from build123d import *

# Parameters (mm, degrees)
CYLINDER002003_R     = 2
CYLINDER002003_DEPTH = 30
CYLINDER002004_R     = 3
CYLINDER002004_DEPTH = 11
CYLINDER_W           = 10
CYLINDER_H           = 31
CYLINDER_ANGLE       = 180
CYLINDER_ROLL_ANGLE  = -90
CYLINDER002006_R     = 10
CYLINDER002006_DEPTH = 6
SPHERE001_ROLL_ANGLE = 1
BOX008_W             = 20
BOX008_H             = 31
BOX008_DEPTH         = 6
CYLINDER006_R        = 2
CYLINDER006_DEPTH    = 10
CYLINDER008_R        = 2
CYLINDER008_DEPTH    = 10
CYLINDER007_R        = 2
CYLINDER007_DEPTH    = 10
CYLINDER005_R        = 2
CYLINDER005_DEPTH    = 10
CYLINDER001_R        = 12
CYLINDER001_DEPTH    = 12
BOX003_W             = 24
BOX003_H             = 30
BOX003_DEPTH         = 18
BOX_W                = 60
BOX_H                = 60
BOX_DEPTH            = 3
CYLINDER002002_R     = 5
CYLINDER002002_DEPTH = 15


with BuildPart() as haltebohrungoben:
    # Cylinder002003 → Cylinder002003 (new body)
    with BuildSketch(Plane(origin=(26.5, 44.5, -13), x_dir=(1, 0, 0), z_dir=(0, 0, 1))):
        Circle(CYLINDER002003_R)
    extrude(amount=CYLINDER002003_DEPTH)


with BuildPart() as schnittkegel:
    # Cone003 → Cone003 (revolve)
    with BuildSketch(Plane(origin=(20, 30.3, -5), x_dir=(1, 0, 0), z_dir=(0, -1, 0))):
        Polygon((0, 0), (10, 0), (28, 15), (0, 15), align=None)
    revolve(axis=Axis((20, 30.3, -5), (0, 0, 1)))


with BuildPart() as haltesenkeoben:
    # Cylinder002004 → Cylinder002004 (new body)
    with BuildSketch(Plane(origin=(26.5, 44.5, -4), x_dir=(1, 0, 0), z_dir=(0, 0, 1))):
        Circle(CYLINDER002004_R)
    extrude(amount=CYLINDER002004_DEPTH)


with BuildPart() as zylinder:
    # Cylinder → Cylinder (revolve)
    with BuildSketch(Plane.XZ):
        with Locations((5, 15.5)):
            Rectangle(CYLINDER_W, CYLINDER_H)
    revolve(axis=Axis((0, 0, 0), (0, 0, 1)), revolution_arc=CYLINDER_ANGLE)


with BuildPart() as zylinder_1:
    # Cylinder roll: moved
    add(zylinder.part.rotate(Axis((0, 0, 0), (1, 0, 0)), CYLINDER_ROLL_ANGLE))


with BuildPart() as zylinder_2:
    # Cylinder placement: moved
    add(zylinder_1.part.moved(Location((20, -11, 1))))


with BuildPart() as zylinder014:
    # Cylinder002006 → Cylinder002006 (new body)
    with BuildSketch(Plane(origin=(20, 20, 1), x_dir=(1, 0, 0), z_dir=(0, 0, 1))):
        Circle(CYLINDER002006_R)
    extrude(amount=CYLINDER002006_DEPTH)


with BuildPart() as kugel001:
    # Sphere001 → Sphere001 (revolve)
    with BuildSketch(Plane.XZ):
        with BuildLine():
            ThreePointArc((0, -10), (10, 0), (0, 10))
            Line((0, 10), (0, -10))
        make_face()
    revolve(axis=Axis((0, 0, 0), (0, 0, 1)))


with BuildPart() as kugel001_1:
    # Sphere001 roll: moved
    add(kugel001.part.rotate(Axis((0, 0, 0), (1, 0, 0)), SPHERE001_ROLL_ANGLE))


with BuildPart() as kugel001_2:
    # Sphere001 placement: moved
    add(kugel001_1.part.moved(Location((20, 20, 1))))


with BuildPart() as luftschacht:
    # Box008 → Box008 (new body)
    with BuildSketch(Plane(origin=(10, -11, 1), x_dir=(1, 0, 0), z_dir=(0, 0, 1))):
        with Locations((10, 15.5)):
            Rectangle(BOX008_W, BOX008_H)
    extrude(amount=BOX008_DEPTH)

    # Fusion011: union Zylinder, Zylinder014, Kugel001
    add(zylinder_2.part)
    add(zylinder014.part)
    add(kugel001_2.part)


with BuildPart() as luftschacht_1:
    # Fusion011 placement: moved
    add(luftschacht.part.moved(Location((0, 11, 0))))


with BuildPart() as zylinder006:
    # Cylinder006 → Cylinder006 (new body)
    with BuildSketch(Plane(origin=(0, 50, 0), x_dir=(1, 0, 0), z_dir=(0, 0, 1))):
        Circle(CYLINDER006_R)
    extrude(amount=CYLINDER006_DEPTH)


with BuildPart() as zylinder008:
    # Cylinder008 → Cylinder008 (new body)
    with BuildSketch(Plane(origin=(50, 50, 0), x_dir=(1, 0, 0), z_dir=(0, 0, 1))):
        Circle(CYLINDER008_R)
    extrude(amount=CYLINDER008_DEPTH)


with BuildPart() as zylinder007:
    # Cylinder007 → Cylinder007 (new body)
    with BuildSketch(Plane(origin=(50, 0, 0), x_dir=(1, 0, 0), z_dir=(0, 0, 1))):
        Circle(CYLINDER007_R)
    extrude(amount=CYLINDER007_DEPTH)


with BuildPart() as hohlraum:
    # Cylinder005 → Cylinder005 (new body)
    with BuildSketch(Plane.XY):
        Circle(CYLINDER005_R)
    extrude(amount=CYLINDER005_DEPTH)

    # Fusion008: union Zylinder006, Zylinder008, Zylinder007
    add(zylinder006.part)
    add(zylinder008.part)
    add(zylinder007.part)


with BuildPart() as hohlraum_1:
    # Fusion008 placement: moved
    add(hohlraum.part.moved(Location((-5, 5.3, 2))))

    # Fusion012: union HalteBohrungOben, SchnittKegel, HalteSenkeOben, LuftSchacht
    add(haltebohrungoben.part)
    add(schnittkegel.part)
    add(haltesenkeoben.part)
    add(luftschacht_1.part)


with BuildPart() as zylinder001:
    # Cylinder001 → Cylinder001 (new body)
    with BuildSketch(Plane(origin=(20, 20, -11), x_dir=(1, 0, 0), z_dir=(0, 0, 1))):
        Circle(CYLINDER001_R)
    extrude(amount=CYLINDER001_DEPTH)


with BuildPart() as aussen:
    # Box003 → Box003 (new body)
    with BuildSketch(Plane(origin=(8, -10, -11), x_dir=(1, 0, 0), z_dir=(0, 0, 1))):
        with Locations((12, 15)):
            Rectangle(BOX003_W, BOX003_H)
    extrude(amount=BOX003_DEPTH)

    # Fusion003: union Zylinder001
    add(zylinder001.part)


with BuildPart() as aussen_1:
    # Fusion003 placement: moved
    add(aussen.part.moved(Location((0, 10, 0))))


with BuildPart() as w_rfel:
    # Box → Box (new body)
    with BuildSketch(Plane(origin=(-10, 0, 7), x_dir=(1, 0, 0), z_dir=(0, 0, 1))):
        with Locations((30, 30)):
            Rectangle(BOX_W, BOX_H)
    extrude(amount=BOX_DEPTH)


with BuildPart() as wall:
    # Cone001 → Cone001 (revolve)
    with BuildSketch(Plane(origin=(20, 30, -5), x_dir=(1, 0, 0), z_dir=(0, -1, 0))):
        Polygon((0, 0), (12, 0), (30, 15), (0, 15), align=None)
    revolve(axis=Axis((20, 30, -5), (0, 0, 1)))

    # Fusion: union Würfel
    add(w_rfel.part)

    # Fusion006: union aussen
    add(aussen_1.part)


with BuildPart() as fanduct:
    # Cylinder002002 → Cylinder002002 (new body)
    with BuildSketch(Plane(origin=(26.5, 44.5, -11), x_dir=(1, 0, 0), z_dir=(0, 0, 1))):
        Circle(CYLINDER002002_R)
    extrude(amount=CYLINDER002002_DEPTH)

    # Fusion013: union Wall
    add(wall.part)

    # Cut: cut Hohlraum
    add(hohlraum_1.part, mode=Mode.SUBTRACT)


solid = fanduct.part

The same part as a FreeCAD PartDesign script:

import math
import FreeCAD as App
import Part
import Sketcher
from FreeCAD import Vector
Q = App.Units.Quantity


def add_polygon(sketch, points):
    """Adds a closed chain of lines whose ends are joined by coincident constraints."""
    first, n = sketch.GeometryCount, len(points)
    for a, b in zip(points, points[1:] + points[:1]):
        sketch.addGeometry(Part.LineSegment(App.Vector(*a, 0), App.Vector(*b, 0)), False)
    for i in range(n):
        sketch.addConstraint(Sketcher.Constraint("Coincident", first + i, 2, first + (i + 1) % n, 1))

doc = App.newDocument("Part")
body = doc.addObject("PartDesign::Body", "Body")

sketch1 = body.newObject("Sketcher::SketchObject", "Sketch")
sketch1.AttachmentSupport = (doc.getObject("XY_Plane"), [""])
sketch1.MapMode = "FlatFace"
sketch1.AttachmentOffset = App.Placement(Vector(0, 0, -13), App.Rotation())
sketch1.addGeometry(Part.Circle(Vector(26.5, 44.5, 0), Vector(0, 0, 1), 2), False)
sketch1.addConstraint([
    Sketcher.Constraint("Diameter", 0, Q("4 mm")),
    Sketcher.Constraint("DistanceX", -1, 1, 0, 3, Q("26.5 mm")),
    Sketcher.Constraint("DistanceY", -1, 1, 0, 3, Q("44.5 mm")),
])
pad1 = body.newObject("PartDesign::Pad", "Pad")
pad1.Profile = sketch1
pad1.Length = 30
body2 = doc.addObject("PartDesign::Body", "Body001")

sketch2 = body2.newObject("Sketcher::SketchObject", "Sketch001")
sketch2.AttachmentSupport = (doc.getObject("XZ_Plane001"), [""])
sketch2.MapMode = "FlatFace"
sketch2.AttachmentOffset = App.Placement(Vector(0, 0, -30.3), App.Rotation())
add_polygon(sketch2, [(20, -5), (30, -5), (48, 10), (20, 10)])
sketch2.addGeometry(Part.LineSegment(Vector(20, -5, 0), Vector(20, 10, 0)), True)
sketch2.addConstraint([
    Sketcher.Constraint("Horizontal", 0),
    Sketcher.Constraint("Horizontal", 2),
    Sketcher.Constraint("Vertical", 3),
    Sketcher.Constraint("Vertical", 4),
    Sketcher.Constraint("Coincident", 4, 1, 3, 2),
    Sketcher.Constraint("Horizontal", 1, 2, 4, 2),
    Sketcher.Constraint("DistanceX", 0, 1, 0, 2, Q("10 mm")),
    Sketcher.Constraint("DistanceX", 2, 2, 2, 1, Q("28 mm")),
    Sketcher.Constraint("DistanceY", 3, 2, 3, 1, Q("15 mm")),
    Sketcher.Constraint("DistanceX", -1, 1, 0, 2, Q("30 mm")),
    Sketcher.Constraint("DistanceY", 0, 2, -1, 1, Q("5 mm")),
])
revolution = body2.newObject("PartDesign::Revolution", "Revolution")
revolution.Profile = sketch2
revolution.ReferenceAxis = (sketch2, ["Axis0"])
revolution.Angle = 360
body3 = doc.addObject("PartDesign::Body", "Body002")

sketch3 = body3.newObject("Sketcher::SketchObject", "Sketch002")
sketch3.AttachmentSupport = (doc.getObject("XY_Plane002"), [""])
sketch3.MapMode = "FlatFace"
sketch3.AttachmentOffset = App.Placement(Vector(0, 0, -4), App.Rotation())
sketch3.addGeometry(Part.Circle(Vector(26.5, 44.5, 0), Vector(0, 0, 1), 3), False)
sketch3.addConstraint([
    Sketcher.Constraint("Diameter", 0, Q("6 mm")),
    Sketcher.Constraint("DistanceX", -1, 1, 0, 3, Q("26.5 mm")),
    Sketcher.Constraint("DistanceY", -1, 1, 0, 3, Q("44.5 mm")),
])
pad2 = body3.newObject("PartDesign::Pad", "Pad001")
pad2.Profile = sketch3
pad2.Length = 11
body4 = doc.addObject("PartDesign::Body", "Body003")

sketch4 = body4.newObject("Sketcher::SketchObject", "Sketch003")
sketch4.AttachmentSupport = (doc.getObject("XZ_Plane003"), [""])
sketch4.MapMode = "FlatFace"
add_polygon(sketch4, [(0, 31), (0, 0), (10, 0), (10, 31)])
sketch4.addConstraint([
    Sketcher.Constraint("Vertical", 0),
    Sketcher.Constraint("Horizontal", 1),
    Sketcher.Constraint("Vertical", 2),
    Sketcher.Constraint("Horizontal", 3),
    Sketcher.Constraint("Coincident", 0, 2, -1, 1),
    Sketcher.Constraint("DistanceX", 1, 1, 1, 2, Q("10 mm")),
    Sketcher.Constraint("DistanceY", 0, 2, 0, 1, Q("31 mm")),
])
revolution2 = body4.newObject("PartDesign::Revolution", "Revolution001")
revolution2.Profile = sketch4
revolution2.ReferenceAxis = (sketch4, ["V_Axis"])
revolution2.Angle = 180
body5 = doc.addObject("PartDesign::Body", "Body004")
doc.recompute()

body4.Placement = App.Placement(Vector(0, 0, 0), App.Rotation(Vector(1, 0, 0), 270))
boolean = body5.newObject("PartDesign::Boolean", "Boolean")
boolean.Type = "Fuse"
boolean.addObjects([body4])
body6 = doc.addObject("PartDesign::Body", "Body005")
doc.recompute()

body5.Placement = App.Placement(Vector(20, -11, 1), App.Rotation(Vector(0, 0, 1), 0))
boolean2 = body6.newObject("PartDesign::Boolean", "Boolean001")
boolean2.Type = "Fuse"
boolean2.addObjects([body5])
body7 = doc.addObject("PartDesign::Body", "Body006")

sketch5 = body7.newObject("Sketcher::SketchObject", "Sketch004")
sketch5.AttachmentSupport = (doc.getObject("XY_Plane006"), [""])
sketch5.MapMode = "FlatFace"
sketch5.AttachmentOffset = App.Placement(Vector(0, 0, 1), App.Rotation())
sketch5.addGeometry(Part.Circle(Vector(20, 20, 0), Vector(0, 0, 1), 10), False)
sketch5.addConstraint([
    Sketcher.Constraint("Diameter", 0, Q("20 mm")),
    Sketcher.Constraint("DistanceX", -1, 1, 0, 3, Q("20 mm")),
    Sketcher.Constraint("DistanceY", -1, 1, 0, 3, Q("20 mm")),
])
pad3 = body7.newObject("PartDesign::Pad", "Pad002")
pad3.Profile = sketch5
pad3.Length = 6
body8 = doc.addObject("PartDesign::Body", "Body007")

sketch6 = body8.newObject("Sketcher::SketchObject", "Sketch005")
sketch6.AttachmentSupport = (doc.getObject("XZ_Plane007"), [""])
sketch6.MapMode = "FlatFace"
sketch6.addGeometry([
    Part.ArcOfCircle(Part.Circle(Vector(0, 0, 0), Vector(0, 0, 1), 10), math.radians(-90), math.radians(90)),
    Part.LineSegment(Vector(0, 10, 0), Vector(0, -10, 0)),
], False)
sketch6.addConstraint([
    Sketcher.Constraint("Coincident", 0, 1, 1, 2),
    Sketcher.Constraint("Coincident", 1, 1, 0, 2),
    Sketcher.Constraint("Vertical", 1),
    Sketcher.Constraint("Coincident", 0, 3, -1, 1),
    Sketcher.Constraint("PointOnObject", 0, 1, -2),
    Sketcher.Constraint("Radius", 0, Q("10 mm")),
])
revolution3 = body8.newObject("PartDesign::Revolution", "Revolution002")
revolution3.Profile = sketch6
revolution3.ReferenceAxis = (sketch6, ["V_Axis"])
revolution3.Angle = 360
body9 = doc.addObject("PartDesign::Body", "Body008")
doc.recompute()

body8.Placement = App.Placement(Vector(0, 0, 0), App.Rotation(Vector(1, 0, 0), 1))
boolean3 = body9.newObject("PartDesign::Boolean", "Boolean002")
boolean3.Type = "Fuse"
boolean3.addObjects([body8])
body10 = doc.addObject("PartDesign::Body", "Body009")
doc.recompute()

body9.Placement = App.Placement(Vector(20, 20, 1), App.Rotation(Vector(0, 0, 1), 0))
boolean4 = body10.newObject("PartDesign::Boolean", "Boolean003")
boolean4.Type = "Fuse"
boolean4.addObjects([body9])
body11 = doc.addObject("PartDesign::Body", "Body010")

sketch7 = body11.newObject("Sketcher::SketchObject", "Sketch006")
sketch7.AttachmentSupport = (doc.getObject("XY_Plane010"), [""])
sketch7.MapMode = "FlatFace"
sketch7.AttachmentOffset = App.Placement(Vector(0, 0, 1), App.Rotation())
add_polygon(sketch7, [(10, 20), (10, -11), (30, -11), (30, 20)])
sketch7.addConstraint([
    Sketcher.Constraint("Vertical", 0),
    Sketcher.Constraint("Horizontal", 1),
    Sketcher.Constraint("Vertical", 2),
    Sketcher.Constraint("Horizontal", 3),
    Sketcher.Constraint("DistanceX", 1, 1, 1, 2, Q("20 mm")),
    Sketcher.Constraint("DistanceY", 0, 2, 0, 1, Q("31 mm")),
    Sketcher.Constraint("DistanceX", -1, 1, 0, 2, Q("10 mm")),
    Sketcher.Constraint("DistanceY", 0, 2, -1, 1, Q("11 mm")),
])
pad4 = body11.newObject("PartDesign::Pad", "Pad003")
pad4.Profile = sketch7
pad4.Length = 6
doc.recompute()

boolean5 = body11.newObject("PartDesign::Boolean", "Boolean004")
boolean5.Type = "Fuse"
boolean5.addObjects([body6])
doc.recompute()

boolean6 = body11.newObject("PartDesign::Boolean", "Boolean005")
boolean6.Type = "Fuse"
boolean6.addObjects([body7])
doc.recompute()

boolean7 = body11.newObject("PartDesign::Boolean", "Boolean006")
boolean7.Type = "Fuse"
boolean7.addObjects([body10])
body12 = doc.addObject("PartDesign::Body", "Body011")
doc.recompute()

body11.Placement = App.Placement(Vector(0, 11, 0), App.Rotation(Vector(0, 0, 1), 0))
boolean8 = body12.newObject("PartDesign::Boolean", "Boolean007")
boolean8.Type = "Fuse"
boolean8.addObjects([body11])
body13 = doc.addObject("PartDesign::Body", "Body012")

sketch8 = body13.newObject("Sketcher::SketchObject", "Sketch007")
sketch8.AttachmentSupport = (doc.getObject("XY_Plane012"), [""])
sketch8.MapMode = "FlatFace"
sketch8.addGeometry(Part.Circle(Vector(0, 50, 0), Vector(0, 0, 1), 2), False)
sketch8.addConstraint([
    Sketcher.Constraint("PointOnObject", 0, 3, -2),
    Sketcher.Constraint("Diameter", 0, Q("4 mm")),
    Sketcher.Constraint("DistanceY", -1, 1, 0, 3, Q("50 mm")),
])
pad5 = body13.newObject("PartDesign::Pad", "Pad004")
pad5.Profile = sketch8
pad5.Length = 10
body14 = doc.addObject("PartDesign::Body", "Body013")

sketch9 = body14.newObject("Sketcher::SketchObject", "Sketch008")
sketch9.AttachmentSupport = (doc.getObject("XY_Plane013"), [""])
sketch9.MapMode = "FlatFace"
sketch9.addGeometry(Part.Circle(Vector(50, 50, 0), Vector(0, 0, 1), 2), False)
sketch9.addConstraint([
    Sketcher.Constraint("Diameter", 0, Q("4 mm")),
    Sketcher.Constraint("DistanceX", -1, 1, 0, 3, Q("50 mm")),
    Sketcher.Constraint("DistanceY", -1, 1, 0, 3, Q("50 mm")),
])
pad6 = body14.newObject("PartDesign::Pad", "Pad005")
pad6.Profile = sketch9
pad6.Length = 10
body15 = doc.addObject("PartDesign::Body", "Body014")

sketch10 = body15.newObject("Sketcher::SketchObject", "Sketch009")
sketch10.AttachmentSupport = (doc.getObject("XY_Plane014"), [""])
sketch10.MapMode = "FlatFace"
sketch10.addGeometry(Part.Circle(Vector(50, 0, 0), Vector(0, 0, 1), 2), False)
sketch10.addConstraint([
    Sketcher.Constraint("PointOnObject", 0, 3, -1),
    Sketcher.Constraint("Diameter", 0, Q("4 mm")),
    Sketcher.Constraint("DistanceX", -1, 1, 0, 3, Q("50 mm")),
])
pad7 = body15.newObject("PartDesign::Pad", "Pad006")
pad7.Profile = sketch10
pad7.Length = 10
body16 = doc.addObject("PartDesign::Body", "Body015")
body16.AllowCompound = True

sketch11 = body16.newObject("Sketcher::SketchObject", "Sketch010")
sketch11.AttachmentSupport = (doc.getObject("XY_Plane015"), [""])
sketch11.MapMode = "FlatFace"
sketch11.addGeometry(Part.Circle(Vector(0, 0, 0), Vector(0, 0, 1), 2), False)
sketch11.addConstraint([
    Sketcher.Constraint("Coincident", 0, 3, -1, 1),
    Sketcher.Constraint("Diameter", 0, Q("4 mm")),
])
pad8 = body16.newObject("PartDesign::Pad", "Pad007")
pad8.Profile = sketch11
pad8.Length = 10
doc.recompute()

boolean9 = body16.newObject("PartDesign::Boolean", "Boolean008")
boolean9.Type = "Fuse"
boolean9.addObjects([body13])
doc.recompute()

boolean10 = body16.newObject("PartDesign::Boolean", "Boolean009")
boolean10.Type = "Fuse"
boolean10.addObjects([body14])
doc.recompute()

boolean11 = body16.newObject("PartDesign::Boolean", "Boolean010")
boolean11.Type = "Fuse"
boolean11.addObjects([body15])
body17 = doc.addObject("PartDesign::Body", "Body016")
body17.AllowCompound = True
doc.recompute()

body16.Placement = App.Placement(Vector(-5, 5.3, 2), App.Rotation(Vector(0, 0, 1), 0))
boolean12 = body17.newObject("PartDesign::Boolean", "Boolean011")
boolean12.Type = "Fuse"
boolean12.addObjects([body16])
doc.recompute()

boolean13 = body17.newObject("PartDesign::Boolean", "Boolean012")
boolean13.Type = "Fuse"
boolean13.addObjects([body])
doc.recompute()

boolean14 = body17.newObject("PartDesign::Boolean", "Boolean013")
boolean14.Type = "Fuse"
boolean14.addObjects([body2])
doc.recompute()

boolean15 = body17.newObject("PartDesign::Boolean", "Boolean014")
boolean15.Type = "Fuse"
boolean15.addObjects([body3])
doc.recompute()

boolean16 = body17.newObject("PartDesign::Boolean", "Boolean015")
boolean16.Type = "Fuse"
boolean16.addObjects([body12])
body18 = doc.addObject("PartDesign::Body", "Body017")

sketch12 = body18.newObject("Sketcher::SketchObject", "Sketch011")
sketch12.AttachmentSupport = (doc.getObject("XY_Plane017"), [""])
sketch12.MapMode = "FlatFace"
sketch12.AttachmentOffset = App.Placement(Vector(0, 0, -11), App.Rotation())
sketch12.addGeometry(Part.Circle(Vector(20, 20, 0), Vector(0, 0, 1), 12), False)
sketch12.addConstraint([
    Sketcher.Constraint("Diameter", 0, Q("24 mm")),
    Sketcher.Constraint("DistanceX", -1, 1, 0, 3, Q("20 mm")),
    Sketcher.Constraint("DistanceY", -1, 1, 0, 3, Q("20 mm")),
])
pad9 = body18.newObject("PartDesign::Pad", "Pad008")
pad9.Profile = sketch12
pad9.Length = 12
body19 = doc.addObject("PartDesign::Body", "Body018")

sketch13 = body19.newObject("Sketcher::SketchObject", "Sketch012")
sketch13.AttachmentSupport = (doc.getObject("XY_Plane018"), [""])
sketch13.MapMode = "FlatFace"
sketch13.AttachmentOffset = App.Placement(Vector(0, 0, -11), App.Rotation())
add_polygon(sketch13, [(8, 20), (8, -10), (32, -10), (32, 20)])
sketch13.addConstraint([
    Sketcher.Constraint("Vertical", 0),
    Sketcher.Constraint("Horizontal", 1),
    Sketcher.Constraint("Vertical", 2),
    Sketcher.Constraint("Horizontal", 3),
    Sketcher.Constraint("DistanceX", 1, 1, 1, 2, Q("24 mm")),
    Sketcher.Constraint("DistanceY", 0, 2, 0, 1, Q("30 mm")),
    Sketcher.Constraint("DistanceX", -1, 1, 0, 2, Q("8 mm")),
    Sketcher.Constraint("DistanceY", 0, 2, -1, 1, Q("10 mm")),
])
pad10 = body19.newObject("PartDesign::Pad", "Pad009")
pad10.Profile = sketch13
pad10.Length = 18
doc.recompute()

boolean17 = body19.newObject("PartDesign::Boolean", "Boolean016")
boolean17.Type = "Fuse"
boolean17.addObjects([body18])
body20 = doc.addObject("PartDesign::Body", "Body019")
doc.recompute()

body19.Placement = App.Placement(Vector(0, 10, 0), App.Rotation(Vector(0, 0, 1), 0))
boolean18 = body20.newObject("PartDesign::Boolean", "Boolean017")
boolean18.Type = "Fuse"
boolean18.addObjects([body19])
body21 = doc.addObject("PartDesign::Body", "Body020")

sketch14 = body21.newObject("Sketcher::SketchObject", "Sketch013")
sketch14.AttachmentSupport = (doc.getObject("XY_Plane020"), [""])
sketch14.MapMode = "FlatFace"
sketch14.AttachmentOffset = App.Placement(Vector(0, 0, 7), App.Rotation())
add_polygon(sketch14, [(-10, 60), (-10, 0), (50, 0), (50, 60)])
sketch14.addConstraint([
    Sketcher.Constraint("Vertical", 0),
    Sketcher.Constraint("Horizontal", 1),
    Sketcher.Constraint("Vertical", 2),
    Sketcher.Constraint("Horizontal", 3),
    Sketcher.Constraint("PointOnObject", 0, 2, -1),
    Sketcher.Constraint("Equal", 3, 0),
    Sketcher.Constraint("DistanceX", 1, 1, 1, 2, Q("60 mm")),
    Sketcher.Constraint("DistanceX", 0, 2, -1, 1, Q("10 mm")),
])
pad11 = body21.newObject("PartDesign::Pad", "Pad010")
pad11.Profile = sketch14
pad11.Length = 3
body22 = doc.addObject("PartDesign::Body", "Body021")

sketch15 = body22.newObject("Sketcher::SketchObject", "Sketch014")
sketch15.AttachmentSupport = (doc.getObject("XZ_Plane021"), [""])
sketch15.MapMode = "FlatFace"
sketch15.AttachmentOffset = App.Placement(Vector(0, 0, -30), App.Rotation())
add_polygon(sketch15, [(20, -5), (32, -5), (50, 10), (20, 10)])
sketch15.addGeometry(Part.LineSegment(Vector(20, -5, 0), Vector(20, 10, 0)), True)
sketch15.addConstraint([
    Sketcher.Constraint("Horizontal", 0),
    Sketcher.Constraint("Horizontal", 2),
    Sketcher.Constraint("Vertical", 3),
    Sketcher.Constraint("Vertical", 4),
    Sketcher.Constraint("Coincident", 4, 1, 3, 2),
    Sketcher.Constraint("Horizontal", 1, 2, 4, 2),
    Sketcher.Constraint("DistanceX", 0, 1, 0, 2, Q("12 mm")),
    Sketcher.Constraint("DistanceX", 2, 2, 2, 1, Q("30 mm")),
    Sketcher.Constraint("DistanceY", 3, 2, 3, 1, Q("15 mm")),
    Sketcher.Constraint("DistanceX", -1, 1, 0, 2, Q("32 mm")),
    Sketcher.Constraint("DistanceY", 0, 2, -1, 1, Q("5 mm")),
])
revolution4 = body22.newObject("PartDesign::Revolution", "Revolution003")
revolution4.Profile = sketch15
revolution4.ReferenceAxis = (sketch15, ["Axis0"])
revolution4.Angle = 360
doc.recompute()

boolean19 = body22.newObject("PartDesign::Boolean", "Boolean018")
boolean19.Type = "Fuse"
boolean19.addObjects([body21])
doc.recompute()

boolean20 = body22.newObject("PartDesign::Boolean", "Boolean019")
boolean20.Type = "Fuse"
boolean20.addObjects([body20])
body23 = doc.addObject("PartDesign::Body", "Body022")

sketch16 = body23.newObject("Sketcher::SketchObject", "Sketch015")
sketch16.AttachmentSupport = (doc.getObject("XY_Plane022"), [""])
sketch16.MapMode = "FlatFace"
sketch16.AttachmentOffset = App.Placement(Vector(0, 0, -11), App.Rotation())
sketch16.addGeometry(Part.Circle(Vector(26, 44, 0), Vector(0, 0, 1), 5), False)
sketch16.addConstraint([
    Sketcher.Constraint("Diameter", 0, Q("10 mm")),
    Sketcher.Constraint("DistanceX", -1, 1, 0, 3, Q("26.5 mm")),
    Sketcher.Constraint("DistanceY", -1, 1, 0, 3, Q("44.5 mm")),
])
pad12 = body23.newObject("PartDesign::Pad", "Pad011")
pad12.Profile = sketch16
pad12.Length = 15
doc.recompute()

boolean21 = body23.newObject("PartDesign::Boolean", "Boolean020")
boolean21.Type = "Fuse"
boolean21.addObjects([body22])
doc.recompute()

boolean22 = body23.newObject("PartDesign::Boolean", "Boolean021")
boolean22.Type = "Cut"
boolean22.addObjects([body17])

doc.recompute()
